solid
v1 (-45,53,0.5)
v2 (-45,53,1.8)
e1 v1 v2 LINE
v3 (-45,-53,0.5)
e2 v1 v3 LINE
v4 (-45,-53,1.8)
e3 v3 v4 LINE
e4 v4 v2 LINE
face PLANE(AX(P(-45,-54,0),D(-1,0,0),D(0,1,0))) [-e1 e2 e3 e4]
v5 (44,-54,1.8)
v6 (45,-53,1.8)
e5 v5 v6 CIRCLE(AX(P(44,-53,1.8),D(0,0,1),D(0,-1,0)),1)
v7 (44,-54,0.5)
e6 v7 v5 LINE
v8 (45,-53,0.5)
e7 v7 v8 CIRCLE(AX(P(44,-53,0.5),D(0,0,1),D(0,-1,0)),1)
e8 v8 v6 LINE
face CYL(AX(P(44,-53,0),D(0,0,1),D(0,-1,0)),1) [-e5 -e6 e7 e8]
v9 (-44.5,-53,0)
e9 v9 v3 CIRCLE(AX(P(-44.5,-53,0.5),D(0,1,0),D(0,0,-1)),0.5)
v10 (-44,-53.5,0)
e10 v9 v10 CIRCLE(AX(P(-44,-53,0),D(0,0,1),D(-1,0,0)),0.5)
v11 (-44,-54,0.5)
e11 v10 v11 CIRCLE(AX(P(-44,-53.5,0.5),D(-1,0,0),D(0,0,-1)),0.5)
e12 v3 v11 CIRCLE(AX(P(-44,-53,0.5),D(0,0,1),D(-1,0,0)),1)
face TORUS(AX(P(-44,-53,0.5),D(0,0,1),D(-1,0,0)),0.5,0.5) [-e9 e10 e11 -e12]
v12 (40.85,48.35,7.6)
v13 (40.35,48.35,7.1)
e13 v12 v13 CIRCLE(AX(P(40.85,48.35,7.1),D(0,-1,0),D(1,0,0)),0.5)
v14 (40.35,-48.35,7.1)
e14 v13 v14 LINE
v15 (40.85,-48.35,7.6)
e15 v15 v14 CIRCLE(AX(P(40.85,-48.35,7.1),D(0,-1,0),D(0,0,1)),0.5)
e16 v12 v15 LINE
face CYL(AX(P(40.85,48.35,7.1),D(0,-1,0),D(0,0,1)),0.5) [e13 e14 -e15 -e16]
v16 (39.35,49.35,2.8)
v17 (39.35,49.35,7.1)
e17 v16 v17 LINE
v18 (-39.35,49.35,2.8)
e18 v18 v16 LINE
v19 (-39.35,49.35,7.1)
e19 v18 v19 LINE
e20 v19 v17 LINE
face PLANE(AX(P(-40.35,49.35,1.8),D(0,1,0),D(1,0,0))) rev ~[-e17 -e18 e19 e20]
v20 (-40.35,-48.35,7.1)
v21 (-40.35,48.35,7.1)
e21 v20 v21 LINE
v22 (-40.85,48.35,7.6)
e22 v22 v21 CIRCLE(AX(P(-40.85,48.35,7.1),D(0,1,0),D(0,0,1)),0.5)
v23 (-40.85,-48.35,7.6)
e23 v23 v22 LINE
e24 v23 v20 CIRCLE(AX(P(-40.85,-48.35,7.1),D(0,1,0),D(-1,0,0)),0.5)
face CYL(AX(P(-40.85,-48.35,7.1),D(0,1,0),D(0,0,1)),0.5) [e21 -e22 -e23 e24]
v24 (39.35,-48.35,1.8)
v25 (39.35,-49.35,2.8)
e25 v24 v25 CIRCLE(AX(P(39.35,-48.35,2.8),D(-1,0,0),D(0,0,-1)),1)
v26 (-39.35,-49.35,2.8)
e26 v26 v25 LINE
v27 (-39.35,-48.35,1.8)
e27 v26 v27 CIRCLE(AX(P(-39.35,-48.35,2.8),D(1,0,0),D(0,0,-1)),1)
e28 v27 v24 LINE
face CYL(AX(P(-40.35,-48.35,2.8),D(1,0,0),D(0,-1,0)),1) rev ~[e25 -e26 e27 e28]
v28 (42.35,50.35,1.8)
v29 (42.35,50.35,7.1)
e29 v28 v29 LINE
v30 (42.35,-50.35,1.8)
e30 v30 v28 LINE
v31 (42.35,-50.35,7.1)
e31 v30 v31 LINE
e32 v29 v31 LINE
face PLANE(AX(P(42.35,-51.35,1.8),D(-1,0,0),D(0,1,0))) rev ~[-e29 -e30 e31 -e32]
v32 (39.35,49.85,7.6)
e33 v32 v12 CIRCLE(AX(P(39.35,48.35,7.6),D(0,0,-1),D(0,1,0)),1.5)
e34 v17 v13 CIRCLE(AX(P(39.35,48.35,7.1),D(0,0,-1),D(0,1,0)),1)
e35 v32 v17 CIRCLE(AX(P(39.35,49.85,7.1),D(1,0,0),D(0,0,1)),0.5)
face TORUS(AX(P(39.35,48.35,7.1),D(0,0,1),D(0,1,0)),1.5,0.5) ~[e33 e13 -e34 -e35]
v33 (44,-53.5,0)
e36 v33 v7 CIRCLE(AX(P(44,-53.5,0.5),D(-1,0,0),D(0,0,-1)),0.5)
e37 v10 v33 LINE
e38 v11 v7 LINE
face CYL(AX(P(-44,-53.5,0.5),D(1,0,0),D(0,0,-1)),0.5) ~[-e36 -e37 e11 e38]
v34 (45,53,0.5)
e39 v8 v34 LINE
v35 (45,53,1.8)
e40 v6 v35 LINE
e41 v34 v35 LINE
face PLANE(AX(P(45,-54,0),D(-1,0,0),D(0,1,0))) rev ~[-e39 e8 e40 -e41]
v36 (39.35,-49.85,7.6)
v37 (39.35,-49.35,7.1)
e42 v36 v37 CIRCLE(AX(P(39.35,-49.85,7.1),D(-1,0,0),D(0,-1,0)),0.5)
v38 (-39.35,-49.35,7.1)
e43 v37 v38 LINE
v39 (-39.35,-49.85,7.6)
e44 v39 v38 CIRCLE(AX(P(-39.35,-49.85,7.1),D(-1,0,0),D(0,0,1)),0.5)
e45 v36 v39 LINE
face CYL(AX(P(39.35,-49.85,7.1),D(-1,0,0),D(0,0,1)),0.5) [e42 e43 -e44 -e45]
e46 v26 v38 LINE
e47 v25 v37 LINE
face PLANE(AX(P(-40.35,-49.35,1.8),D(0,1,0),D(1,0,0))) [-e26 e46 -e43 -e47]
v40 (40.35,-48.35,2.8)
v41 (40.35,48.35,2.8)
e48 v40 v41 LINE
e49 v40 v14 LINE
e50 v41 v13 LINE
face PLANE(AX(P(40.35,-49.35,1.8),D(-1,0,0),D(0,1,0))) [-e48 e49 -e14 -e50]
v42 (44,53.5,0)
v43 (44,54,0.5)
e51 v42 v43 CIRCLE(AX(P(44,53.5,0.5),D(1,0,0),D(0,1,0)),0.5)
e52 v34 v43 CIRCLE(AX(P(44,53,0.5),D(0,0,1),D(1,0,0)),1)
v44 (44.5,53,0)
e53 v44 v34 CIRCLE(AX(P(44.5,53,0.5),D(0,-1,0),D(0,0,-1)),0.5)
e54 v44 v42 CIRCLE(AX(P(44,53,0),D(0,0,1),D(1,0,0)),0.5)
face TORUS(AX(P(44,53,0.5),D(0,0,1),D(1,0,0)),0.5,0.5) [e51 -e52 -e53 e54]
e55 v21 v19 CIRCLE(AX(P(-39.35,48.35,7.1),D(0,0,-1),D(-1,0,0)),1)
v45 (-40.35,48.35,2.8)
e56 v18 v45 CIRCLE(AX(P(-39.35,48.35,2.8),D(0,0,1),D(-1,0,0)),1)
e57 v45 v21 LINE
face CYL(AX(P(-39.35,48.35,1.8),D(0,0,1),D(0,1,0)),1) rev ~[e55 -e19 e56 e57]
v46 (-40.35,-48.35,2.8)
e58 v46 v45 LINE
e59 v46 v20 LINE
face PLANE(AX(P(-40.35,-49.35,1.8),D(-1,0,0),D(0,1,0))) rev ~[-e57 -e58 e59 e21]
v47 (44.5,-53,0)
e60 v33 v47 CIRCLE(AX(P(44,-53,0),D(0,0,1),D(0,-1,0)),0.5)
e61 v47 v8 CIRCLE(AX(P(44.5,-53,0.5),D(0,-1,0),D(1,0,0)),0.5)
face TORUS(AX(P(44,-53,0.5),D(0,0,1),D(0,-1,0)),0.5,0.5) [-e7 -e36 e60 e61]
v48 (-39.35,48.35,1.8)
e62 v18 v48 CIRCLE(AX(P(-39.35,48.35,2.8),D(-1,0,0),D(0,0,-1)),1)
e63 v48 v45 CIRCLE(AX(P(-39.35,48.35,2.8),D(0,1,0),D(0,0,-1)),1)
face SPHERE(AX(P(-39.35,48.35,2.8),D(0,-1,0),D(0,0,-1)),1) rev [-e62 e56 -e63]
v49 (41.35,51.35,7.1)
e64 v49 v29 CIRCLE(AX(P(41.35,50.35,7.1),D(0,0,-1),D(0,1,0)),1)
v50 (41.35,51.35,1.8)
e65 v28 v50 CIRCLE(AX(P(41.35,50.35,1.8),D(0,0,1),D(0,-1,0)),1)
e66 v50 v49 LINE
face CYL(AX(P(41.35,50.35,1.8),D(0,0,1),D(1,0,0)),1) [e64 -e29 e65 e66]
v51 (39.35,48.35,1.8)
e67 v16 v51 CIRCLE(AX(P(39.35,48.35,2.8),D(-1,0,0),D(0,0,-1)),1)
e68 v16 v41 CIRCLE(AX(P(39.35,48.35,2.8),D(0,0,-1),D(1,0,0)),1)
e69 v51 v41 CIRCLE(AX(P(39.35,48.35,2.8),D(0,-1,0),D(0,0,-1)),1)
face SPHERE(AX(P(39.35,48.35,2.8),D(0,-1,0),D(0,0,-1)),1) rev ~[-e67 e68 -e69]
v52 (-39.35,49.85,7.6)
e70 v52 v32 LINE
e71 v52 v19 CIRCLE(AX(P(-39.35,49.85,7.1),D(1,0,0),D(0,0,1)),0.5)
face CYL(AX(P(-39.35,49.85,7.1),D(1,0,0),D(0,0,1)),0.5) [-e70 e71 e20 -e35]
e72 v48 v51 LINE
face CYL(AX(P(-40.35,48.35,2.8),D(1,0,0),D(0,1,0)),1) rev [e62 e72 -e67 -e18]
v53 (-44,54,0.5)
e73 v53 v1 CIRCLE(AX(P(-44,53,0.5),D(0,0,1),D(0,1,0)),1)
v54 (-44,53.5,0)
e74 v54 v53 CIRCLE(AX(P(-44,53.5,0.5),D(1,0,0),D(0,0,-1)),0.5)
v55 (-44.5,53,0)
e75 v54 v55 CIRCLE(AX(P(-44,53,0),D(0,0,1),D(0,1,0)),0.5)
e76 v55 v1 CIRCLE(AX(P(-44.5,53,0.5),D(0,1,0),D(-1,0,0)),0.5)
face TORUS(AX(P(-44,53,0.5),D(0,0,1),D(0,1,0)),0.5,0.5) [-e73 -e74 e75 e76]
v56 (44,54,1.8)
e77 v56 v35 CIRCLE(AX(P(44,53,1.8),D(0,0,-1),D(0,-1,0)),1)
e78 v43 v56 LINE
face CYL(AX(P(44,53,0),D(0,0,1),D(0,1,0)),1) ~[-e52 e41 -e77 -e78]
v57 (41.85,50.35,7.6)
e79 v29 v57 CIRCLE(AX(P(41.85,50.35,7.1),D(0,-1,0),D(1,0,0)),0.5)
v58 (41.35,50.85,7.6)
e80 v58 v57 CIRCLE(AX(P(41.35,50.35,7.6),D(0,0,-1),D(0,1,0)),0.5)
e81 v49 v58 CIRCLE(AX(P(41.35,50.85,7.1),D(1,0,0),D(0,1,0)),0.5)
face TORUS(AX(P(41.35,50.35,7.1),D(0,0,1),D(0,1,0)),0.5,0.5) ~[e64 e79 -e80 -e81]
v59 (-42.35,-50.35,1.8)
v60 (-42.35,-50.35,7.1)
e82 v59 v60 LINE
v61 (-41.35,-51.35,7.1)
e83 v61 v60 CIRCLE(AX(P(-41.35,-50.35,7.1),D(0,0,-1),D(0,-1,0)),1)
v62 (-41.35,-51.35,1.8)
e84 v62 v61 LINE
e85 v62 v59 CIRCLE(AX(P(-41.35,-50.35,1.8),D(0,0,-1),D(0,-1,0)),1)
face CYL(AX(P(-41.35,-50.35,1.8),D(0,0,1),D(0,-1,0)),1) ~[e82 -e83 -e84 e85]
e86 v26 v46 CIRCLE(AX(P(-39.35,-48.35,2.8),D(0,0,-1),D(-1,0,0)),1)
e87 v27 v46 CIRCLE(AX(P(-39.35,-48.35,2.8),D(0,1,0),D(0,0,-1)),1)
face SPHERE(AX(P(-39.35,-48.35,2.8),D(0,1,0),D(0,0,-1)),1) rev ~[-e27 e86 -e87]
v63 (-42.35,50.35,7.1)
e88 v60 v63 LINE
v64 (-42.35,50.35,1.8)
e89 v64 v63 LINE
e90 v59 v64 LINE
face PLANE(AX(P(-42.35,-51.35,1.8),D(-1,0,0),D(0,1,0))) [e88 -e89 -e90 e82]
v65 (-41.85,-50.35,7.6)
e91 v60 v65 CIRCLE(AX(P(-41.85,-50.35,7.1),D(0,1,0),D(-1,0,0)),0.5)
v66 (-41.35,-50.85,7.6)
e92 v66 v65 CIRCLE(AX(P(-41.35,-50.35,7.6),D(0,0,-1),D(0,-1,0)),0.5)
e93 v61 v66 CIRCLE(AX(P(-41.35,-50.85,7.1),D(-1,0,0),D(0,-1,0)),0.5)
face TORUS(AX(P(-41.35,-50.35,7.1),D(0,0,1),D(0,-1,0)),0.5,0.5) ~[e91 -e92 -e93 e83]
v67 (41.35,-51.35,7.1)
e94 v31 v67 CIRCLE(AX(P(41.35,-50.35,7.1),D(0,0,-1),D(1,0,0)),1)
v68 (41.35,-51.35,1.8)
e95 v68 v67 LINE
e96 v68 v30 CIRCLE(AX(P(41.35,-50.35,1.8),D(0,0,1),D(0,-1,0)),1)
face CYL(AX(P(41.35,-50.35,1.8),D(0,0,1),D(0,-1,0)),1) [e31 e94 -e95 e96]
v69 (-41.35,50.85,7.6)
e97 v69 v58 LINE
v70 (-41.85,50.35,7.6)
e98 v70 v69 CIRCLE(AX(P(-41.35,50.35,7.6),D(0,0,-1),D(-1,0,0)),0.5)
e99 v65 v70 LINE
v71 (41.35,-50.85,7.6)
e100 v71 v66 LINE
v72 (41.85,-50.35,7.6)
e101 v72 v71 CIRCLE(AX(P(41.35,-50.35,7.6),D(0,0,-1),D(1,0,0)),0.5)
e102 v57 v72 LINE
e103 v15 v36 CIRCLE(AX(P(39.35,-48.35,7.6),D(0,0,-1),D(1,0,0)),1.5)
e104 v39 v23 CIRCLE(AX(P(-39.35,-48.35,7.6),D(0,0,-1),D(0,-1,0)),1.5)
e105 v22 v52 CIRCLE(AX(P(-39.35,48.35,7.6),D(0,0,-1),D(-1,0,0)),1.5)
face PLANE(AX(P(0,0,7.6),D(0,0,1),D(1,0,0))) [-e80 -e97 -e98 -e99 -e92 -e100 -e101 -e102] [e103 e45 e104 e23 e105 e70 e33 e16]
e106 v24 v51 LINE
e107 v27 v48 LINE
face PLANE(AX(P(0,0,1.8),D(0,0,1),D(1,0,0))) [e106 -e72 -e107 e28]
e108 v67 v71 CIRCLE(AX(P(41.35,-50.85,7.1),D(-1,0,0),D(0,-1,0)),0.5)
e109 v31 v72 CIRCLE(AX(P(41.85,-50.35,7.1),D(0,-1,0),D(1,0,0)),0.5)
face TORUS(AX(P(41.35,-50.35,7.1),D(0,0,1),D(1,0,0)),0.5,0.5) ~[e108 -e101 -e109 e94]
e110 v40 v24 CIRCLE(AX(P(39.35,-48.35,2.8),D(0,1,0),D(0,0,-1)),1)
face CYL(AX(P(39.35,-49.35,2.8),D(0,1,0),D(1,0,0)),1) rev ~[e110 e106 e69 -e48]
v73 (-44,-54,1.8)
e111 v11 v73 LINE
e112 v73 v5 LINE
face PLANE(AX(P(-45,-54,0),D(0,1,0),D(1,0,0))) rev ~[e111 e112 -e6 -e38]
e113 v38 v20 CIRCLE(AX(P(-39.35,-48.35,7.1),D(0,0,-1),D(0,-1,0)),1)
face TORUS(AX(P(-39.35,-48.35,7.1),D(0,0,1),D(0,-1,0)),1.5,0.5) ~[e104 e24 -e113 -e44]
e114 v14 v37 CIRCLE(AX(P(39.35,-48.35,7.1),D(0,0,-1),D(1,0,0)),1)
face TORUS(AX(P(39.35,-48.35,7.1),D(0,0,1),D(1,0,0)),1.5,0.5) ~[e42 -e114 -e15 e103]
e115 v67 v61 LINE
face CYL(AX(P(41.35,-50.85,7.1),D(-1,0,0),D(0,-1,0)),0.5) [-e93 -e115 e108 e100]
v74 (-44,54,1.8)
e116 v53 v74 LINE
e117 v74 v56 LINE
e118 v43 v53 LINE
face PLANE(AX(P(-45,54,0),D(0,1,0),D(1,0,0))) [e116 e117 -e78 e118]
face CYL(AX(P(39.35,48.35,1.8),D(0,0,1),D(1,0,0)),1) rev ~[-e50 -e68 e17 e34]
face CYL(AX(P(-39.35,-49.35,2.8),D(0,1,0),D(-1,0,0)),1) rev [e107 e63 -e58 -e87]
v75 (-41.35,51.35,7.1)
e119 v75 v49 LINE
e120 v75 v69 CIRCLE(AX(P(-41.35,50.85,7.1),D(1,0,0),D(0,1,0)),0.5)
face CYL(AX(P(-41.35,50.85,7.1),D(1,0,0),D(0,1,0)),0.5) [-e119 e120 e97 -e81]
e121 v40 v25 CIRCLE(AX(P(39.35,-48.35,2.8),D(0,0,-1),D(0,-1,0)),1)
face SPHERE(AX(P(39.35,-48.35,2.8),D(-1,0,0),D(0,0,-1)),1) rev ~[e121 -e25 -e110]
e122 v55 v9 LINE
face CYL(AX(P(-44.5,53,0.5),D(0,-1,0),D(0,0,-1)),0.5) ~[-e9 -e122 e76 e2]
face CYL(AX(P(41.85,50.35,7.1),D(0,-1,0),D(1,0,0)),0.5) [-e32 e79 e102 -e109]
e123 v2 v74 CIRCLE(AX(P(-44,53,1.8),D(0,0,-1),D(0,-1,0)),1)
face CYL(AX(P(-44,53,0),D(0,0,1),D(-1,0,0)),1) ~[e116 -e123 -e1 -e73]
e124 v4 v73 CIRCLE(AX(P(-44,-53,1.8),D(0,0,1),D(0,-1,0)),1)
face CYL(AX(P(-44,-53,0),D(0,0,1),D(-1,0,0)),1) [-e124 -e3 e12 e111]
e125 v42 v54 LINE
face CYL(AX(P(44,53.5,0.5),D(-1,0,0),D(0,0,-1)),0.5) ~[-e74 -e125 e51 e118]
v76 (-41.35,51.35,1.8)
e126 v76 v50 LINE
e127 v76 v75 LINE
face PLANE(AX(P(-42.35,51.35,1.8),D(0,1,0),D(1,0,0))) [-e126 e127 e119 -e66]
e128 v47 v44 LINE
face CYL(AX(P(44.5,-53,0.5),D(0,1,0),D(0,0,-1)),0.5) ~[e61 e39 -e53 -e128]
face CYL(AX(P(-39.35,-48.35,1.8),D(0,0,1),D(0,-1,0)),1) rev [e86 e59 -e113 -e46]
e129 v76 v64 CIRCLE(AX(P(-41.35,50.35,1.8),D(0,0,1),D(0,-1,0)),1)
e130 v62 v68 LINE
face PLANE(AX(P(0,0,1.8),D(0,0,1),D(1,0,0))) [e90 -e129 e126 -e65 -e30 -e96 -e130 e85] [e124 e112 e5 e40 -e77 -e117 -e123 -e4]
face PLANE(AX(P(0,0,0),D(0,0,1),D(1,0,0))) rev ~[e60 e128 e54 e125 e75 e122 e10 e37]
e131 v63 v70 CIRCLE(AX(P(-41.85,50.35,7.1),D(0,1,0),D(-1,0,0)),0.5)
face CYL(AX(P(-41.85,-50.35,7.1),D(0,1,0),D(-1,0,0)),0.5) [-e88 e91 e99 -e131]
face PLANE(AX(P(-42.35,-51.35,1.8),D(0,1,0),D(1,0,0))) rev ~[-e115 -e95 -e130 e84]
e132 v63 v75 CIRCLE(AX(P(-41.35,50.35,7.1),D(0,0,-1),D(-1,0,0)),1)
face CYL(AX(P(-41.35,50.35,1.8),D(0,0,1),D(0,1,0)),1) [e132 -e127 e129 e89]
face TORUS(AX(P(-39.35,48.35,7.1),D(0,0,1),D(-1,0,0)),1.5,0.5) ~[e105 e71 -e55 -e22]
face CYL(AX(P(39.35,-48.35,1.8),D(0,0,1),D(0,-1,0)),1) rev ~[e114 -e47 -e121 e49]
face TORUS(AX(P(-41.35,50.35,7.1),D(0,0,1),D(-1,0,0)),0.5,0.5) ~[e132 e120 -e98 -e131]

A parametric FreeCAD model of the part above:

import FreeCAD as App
import Part
import Sketcher
from FreeCAD import Vector


def edges_at(feature, points):
    """Names of the edges that pass closest to the given points."""
    edges = feature.Shape.Edges
    near = lambda p: min(range(len(edges)), key=lambda i: edges[i].distToShape(Part.Vertex(*p))[0])
    return sorted({f"Edge{near(p) + 1}" for p in points})

doc = App.newDocument("Part")
body = doc.addObject("PartDesign::Body", "Body")

# Sketch on XY plane
sketch1 = body.newObject("Sketcher::SketchObject", "Sketch")
sketch1.AttachmentSupport = (doc.getObject("XY_Plane"), [""])
sketch1.MapMode = "FlatFace"
sketch1.addGeometry([
    Part.LineSegment(Vector(-45, 54, 0), Vector(-45, -54, 0)),
    Part.LineSegment(Vector(-45, -54, 0), Vector(45, -54, 0)),
    Part.LineSegment(Vector(45, -54, 0), Vector(45, 54, 0)),
    Part.LineSegment(Vector(45, 54, 0), Vector(-45, 54, 0)),
], False)
sketch1.addConstraint([
    Sketcher.Constraint("Coincident", 0, 2, 1, 1),
    Sketcher.Constraint("Coincident", 1, 2, 2, 1),
    Sketcher.Constraint("Coincident", 2, 2, 3, 1),
    Sketcher.Constraint("Coincident", 3, 2, 0, 1),
    Sketcher.Constraint("Vertical", 0),
    Sketcher.Constraint("Horizontal", 1),
    Sketcher.Constraint("Vertical", 2),
    Sketcher.Constraint("Horizontal", 3),
    Sketcher.Constraint("Symmetric", 0, 2, 2, 2, -1, 1),
    Sketcher.Constraint("DistanceX", 1, 1, 1, 2, 90.0),
    Sketcher.Constraint("DistanceY", 0, 2, 0, 1, 108.0),
])
pad1 = body.newObject("PartDesign::Pad", "Pad")
pad1.Profile = sketch1
pad1.Length = 1.8

# Sketch on XY plane
sketch2 = body.newObject("Sketcher::SketchObject", "Sketch001")
sketch2.AttachmentSupport = (doc.getObject("XY_Plane"), [""])
sketch2.MapMode = "FlatFace"
sketch2.AttachmentOffset = App.Placement(Vector(0, 0, 1.8), App.Rotation())
sketch2.addGeometry([
    Part.LineSegment(Vector(-42.35, 51.35, 0), Vector(-42.35, -51.35, 0)),  # 0
    Part.LineSegment(Vector(-42.35, -51.35, 0), Vector(42.35, -51.35, 0)),  # 1
    Part.LineSegment(Vector(42.35, -51.35, 0), Vector(42.35, 51.35, 0)),  # 2
    Part.LineSegment(Vector(42.35, 51.35, 0), Vector(-42.35, 51.35, 0)),  # 3
    Part.LineSegment(Vector(40.35, -49.35, 0), Vector(-40.35, -49.35, 0)),  # 4
    Part.LineSegment(Vector(-40.35, -49.35, 0), Vector(-40.35, 49.35, 0)),  # 5
    Part.LineSegment(Vector(-40.35, 49.35, 0), Vector(40.35, 49.35, 0)),  # 6
    Part.LineSegment(Vector(40.35, 49.35, 0), Vector(40.35, -49.35, 0)),  # 7
], False)
sketch2.addConstraint([
    Sketcher.Constraint("Coincident", 0, 2, 1, 1),
    Sketcher.Constraint("Coincident", 1, 2, 2, 1),
    Sketcher.Constraint("Coincident", 2, 2, 3, 1),
    Sketcher.Constraint("Coincident", 3, 2, 0, 1),
    Sketcher.Constraint("Coincident", 4, 2, 5, 1),
    Sketcher.Constraint("Coincident", 5, 2, 6, 1),
    Sketcher.Constraint("Coincident", 6, 2, 7, 1),
    Sketcher.Constraint("Coincident", 7, 2, 4, 1),
    Sketcher.Constraint("Vertical", 0),
    Sketcher.Constraint("Horizontal", 1),
    Sketcher.Constraint("Vertical", 2),
    Sketcher.Constraint("Horizontal", 3),
    Sketcher.Constraint("Horizontal", 4),
    Sketcher.Constraint("Vertical", 5),
    Sketcher.Constraint("Horizontal", 6),
    Sketcher.Constraint("Vertical", 7),
    Sketcher.Constraint("Symmetric", 0, 2, 2, 2, -1, 1),
    Sketcher.Constraint("Symmetric", 4, 2, 6, 2, -1, 1),
    Sketcher.Constraint("DistanceX", 1, 1, 1, 2, 84.7),
    Sketcher.Constraint("DistanceX", 4, 2, 4, 1, 80.7),
    Sketcher.Constraint("DistanceY", 0, 2, 0, 1, 102.7),
    Sketcher.Constraint("DistanceY", 5, 1, 5, 2, 98.7),
])
pad2 = body.newObject("PartDesign::Pad", "Pad001")
pad2.Profile = sketch2
pad2.Length = 5.8
doc.recompute()

fillet = body.newObject("PartDesign::Fillet", "Fillet")
fillet.Base = (pad2, edges_at(pad2, [
    (-40.35, 0, 1.8),
    (0, -49.35, 1.8),
    (40.35, 0, 1.8),
    (0, 49.35, 1.8),
    (-42.35, 51.35, 4.7),
    (-42.35, -51.35, 4.7),
    (42.35, -51.35, 4.7),
    (42.35, 51.35, 4.7),
    (-40.35, -49.35, 4.7),
    (40.35, -49.35, 4.7),
    (40.35, 49.35, 4.7),
    (-40.35, 49.35, 4.7),
    (45, -54, 0.9),
    (-45, -54, 0.9),
    (-45, 54, 0.9),
    (45, 54, 0.9),
]))
fillet.Radius = 1
doc.recompute()

fillet2 = body.newObject("PartDesign::Fillet", "Fillet001")
fillet2.Base = (fillet, edges_at(fillet, [
    (0, 49.35, 7.6),
    (40.35, 0, 7.6),
    (0, -49.35, 7.6),
    (-40.35, 0, 7.6),
    (0, -54, 0),
    (45, 0, 0),
    (-45, 0, 0),
    (0, 54, 0),
    (44.707, 53.707, 0),
    (44.707, -53.707, 0),
    (-44.707, 53.707, 0),
    (-44.707, -53.707, 0),
    (-42.35, 0, 7.6),
    (0, 51.35, 7.6),
    (0, -51.35, 7.6),
    (42.35, 0, 7.6),
    (42.057, 51.057, 7.6),
    (-42.057, -51.057, 7.6),
    (42.057, -51.057, 7.6),
    (-42.057, 51.057, 7.6),
    (40.057, -49.057, 7.6),
    (40.057, 49.057, 7.6),
    (-40.057, 49.057, 7.6),
    (-40.057, -49.057, 7.6),
]))
fillet2.Radius = 0.5

doc.recompute()
